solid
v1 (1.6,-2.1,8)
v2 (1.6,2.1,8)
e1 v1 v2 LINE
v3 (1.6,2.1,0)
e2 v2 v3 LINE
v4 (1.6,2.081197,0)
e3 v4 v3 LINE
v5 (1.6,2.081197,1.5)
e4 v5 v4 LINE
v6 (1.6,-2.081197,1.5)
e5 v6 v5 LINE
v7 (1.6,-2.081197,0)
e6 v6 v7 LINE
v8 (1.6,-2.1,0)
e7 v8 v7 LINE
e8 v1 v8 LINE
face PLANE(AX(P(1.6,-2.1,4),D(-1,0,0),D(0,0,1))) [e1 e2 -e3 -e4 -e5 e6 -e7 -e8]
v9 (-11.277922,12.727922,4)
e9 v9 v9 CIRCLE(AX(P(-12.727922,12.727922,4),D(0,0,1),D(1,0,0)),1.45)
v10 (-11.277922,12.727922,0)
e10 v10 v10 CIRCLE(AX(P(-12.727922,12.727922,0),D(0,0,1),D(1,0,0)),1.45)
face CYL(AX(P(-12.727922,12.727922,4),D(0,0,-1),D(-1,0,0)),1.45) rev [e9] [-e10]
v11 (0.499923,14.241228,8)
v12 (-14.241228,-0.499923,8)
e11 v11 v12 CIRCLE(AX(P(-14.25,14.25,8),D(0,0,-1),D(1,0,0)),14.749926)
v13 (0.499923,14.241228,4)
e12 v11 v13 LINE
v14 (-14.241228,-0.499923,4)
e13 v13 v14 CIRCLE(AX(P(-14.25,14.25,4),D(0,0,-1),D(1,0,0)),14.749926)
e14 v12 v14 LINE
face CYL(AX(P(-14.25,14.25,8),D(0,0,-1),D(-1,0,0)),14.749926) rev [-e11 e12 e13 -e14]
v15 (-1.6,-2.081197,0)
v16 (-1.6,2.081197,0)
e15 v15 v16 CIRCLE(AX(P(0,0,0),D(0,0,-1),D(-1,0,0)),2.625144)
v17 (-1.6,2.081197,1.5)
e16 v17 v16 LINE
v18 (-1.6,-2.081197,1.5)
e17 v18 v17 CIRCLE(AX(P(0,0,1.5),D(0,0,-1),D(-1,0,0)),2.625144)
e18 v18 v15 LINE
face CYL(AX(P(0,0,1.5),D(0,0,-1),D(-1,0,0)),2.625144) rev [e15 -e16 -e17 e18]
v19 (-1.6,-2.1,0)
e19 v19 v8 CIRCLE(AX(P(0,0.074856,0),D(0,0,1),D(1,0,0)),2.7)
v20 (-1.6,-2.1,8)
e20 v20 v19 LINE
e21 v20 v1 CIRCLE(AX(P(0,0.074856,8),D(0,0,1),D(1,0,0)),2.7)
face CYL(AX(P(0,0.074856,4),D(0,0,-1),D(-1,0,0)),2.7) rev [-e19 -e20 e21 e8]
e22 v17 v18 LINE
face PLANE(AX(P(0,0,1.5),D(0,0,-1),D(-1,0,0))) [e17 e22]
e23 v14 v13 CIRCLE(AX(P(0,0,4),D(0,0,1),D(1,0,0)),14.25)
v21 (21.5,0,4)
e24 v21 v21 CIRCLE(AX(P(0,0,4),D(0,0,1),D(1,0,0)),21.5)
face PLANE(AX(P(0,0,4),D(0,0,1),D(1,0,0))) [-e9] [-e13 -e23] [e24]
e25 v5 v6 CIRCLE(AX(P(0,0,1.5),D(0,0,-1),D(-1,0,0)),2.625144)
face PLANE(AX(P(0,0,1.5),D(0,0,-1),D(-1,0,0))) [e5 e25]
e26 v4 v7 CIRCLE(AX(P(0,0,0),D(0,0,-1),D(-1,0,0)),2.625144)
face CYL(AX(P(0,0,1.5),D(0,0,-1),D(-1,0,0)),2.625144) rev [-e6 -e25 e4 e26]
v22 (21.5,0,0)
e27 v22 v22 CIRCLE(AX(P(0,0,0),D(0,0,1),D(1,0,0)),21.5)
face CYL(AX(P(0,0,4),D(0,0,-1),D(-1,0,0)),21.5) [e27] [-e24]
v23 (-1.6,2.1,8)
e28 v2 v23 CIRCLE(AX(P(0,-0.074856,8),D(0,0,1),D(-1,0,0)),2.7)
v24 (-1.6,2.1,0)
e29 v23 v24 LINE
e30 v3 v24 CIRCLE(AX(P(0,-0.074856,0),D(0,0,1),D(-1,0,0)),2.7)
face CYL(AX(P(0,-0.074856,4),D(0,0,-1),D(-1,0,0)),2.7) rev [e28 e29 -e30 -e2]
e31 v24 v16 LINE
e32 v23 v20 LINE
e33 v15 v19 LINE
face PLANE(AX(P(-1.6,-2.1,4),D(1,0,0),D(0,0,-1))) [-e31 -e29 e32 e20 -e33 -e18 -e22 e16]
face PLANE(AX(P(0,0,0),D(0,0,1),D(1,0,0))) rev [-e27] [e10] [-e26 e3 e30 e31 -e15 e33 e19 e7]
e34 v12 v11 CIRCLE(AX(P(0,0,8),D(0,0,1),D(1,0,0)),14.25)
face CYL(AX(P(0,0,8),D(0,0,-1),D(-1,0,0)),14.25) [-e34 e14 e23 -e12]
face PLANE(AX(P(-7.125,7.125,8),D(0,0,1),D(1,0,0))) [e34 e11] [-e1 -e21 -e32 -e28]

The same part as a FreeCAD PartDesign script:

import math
import FreeCAD as App
import Part
import Sketcher

doc = App.newDocument("Part")
body = doc.addObject("PartDesign::Body", "Body")

sketch1 = body.newObject("Sketcher::SketchObject", "Sketch")
sketch1.AttachmentSupport = (doc.getObject("XY_Plane"), [""])
sketch1.MapMode = "FlatFace"
sketch1.addGeometry([
    Part.Circle(App.Vector(0, 0, 0), App.Vector(0, 0, 1), 21.5),
    Part.ArcOfCircle(Part.Circle(App.Vector(0, 0.074856, 0), App.Vector(0, 0, 1), 2.7), math.radians(-126.341203), math.radians(-53.658797)),
    Part.LineSegment(App.Vector(-1.6, -2.1, 0), App.Vector(-1.6, 2.1, 0)),
    Part.ArcOfCircle(Part.Circle(App.Vector(0, -0.074856, 0), App.Vector(0, 0, 1), 2.7), math.radians(53.658797), math.radians(126.341203)),
    Part.LineSegment(App.Vector(1.6, 2.1, 0), App.Vector(1.6, -2.1, 0)),
    Part.Circle(App.Vector(-12.727922, 12.727922, 0), App.Vector(0, 0, 1), 1.45),
], False)
sketch1.addConstraint([
    Sketcher.Constraint("Coincident", 1, 1, 2, 1),
    Sketcher.Constraint("Coincident", 2, 2, 3, 2),
    Sketcher.Constraint("Coincident", 3, 1, 4, 1),
    Sketcher.Constraint("Coincident", 4, 2, 1, 2),
    Sketcher.Constraint("Vertical", 2),
    Sketcher.Constraint("Vertical", 4),
    Sketcher.Constraint("Coincident", 0, 3, -1, 1),
    Sketcher.Constraint("Equal", 1, 3),
    Sketcher.Constraint("Symmetric", 1, 3, 3, 3, -1, 1),
    Sketcher.Constraint("Symmetric", 2, 2, 3, 1, -2),
    Sketcher.Constraint("Diameter", 0, 43.0),
    Sketcher.Constraint("Diameter", 5, 2.9),
    Sketcher.Constraint("Radius", 1, 2.7),
    Sketcher.Constraint("DistanceY", 2, 1, 2, 2, 4.2),
    Sketcher.Constraint("DistanceX", 1, 1, -1, 1, 1.6),
    Sketcher.Constraint("DistanceY", 3, 3, 5, 3, 12.802778),
    Sketcher.Constraint("DistanceX", 5, 3, -1, 1, 12.727922),
])
pad1 = body.newObject("PartDesign::Pad", "Pad")
pad1.Profile = sketch1
pad1.Length = 4

sketch2 = body.newObject("Sketcher::SketchObject", "Sketch001")
sketch2.AttachmentSupport = (doc.getObject("XY_Plane"), [""])
sketch2.MapMode = "FlatFace"
sketch2.AttachmentOffset = App.Placement(App.Vector(0, 0, 4), App.Rotation())
sketch2.addGeometry([
    Part.ArcOfCircle(Part.Circle(App.Vector(0, 0, 0), App.Vector(0, 0, 1), 14.25), math.radians(-177.989519), math.radians(87.989519)),
    Part.ArcOfCircle(Part.Circle(App.Vector(-14.25, 14.25, 0), App.Vector(0, 0, 1), 14.749926), math.radians(-89.965926), math.radians(-0.034074)),
    Part.LineSegment(App.Vector(1.6, 2.1, 0), App.Vector(1.6, -2.1, 0)),
    Part.ArcOfCircle(Part.Circle(App.Vector(0, 0.074856, 0), App.Vector(0, 0, 1), 2.7), math.radians(-126.341203), math.radians(-53.658797)),
    Part.LineSegment(App.Vector(-1.6, -2.1, 0), App.Vector(-1.6, 2.1, 0)),
    Part.ArcOfCircle(Part.Circle(App.Vector(0, -0.074856, 0), App.Vector(0, 0, 1), 2.7), math.radians(53.658797), math.radians(126.341203)),
], False)
sketch2.addConstraint([
    Sketcher.Constraint("Coincident", 0, 1, 1, 1),
    Sketcher.Constraint("Coincident", 1, 2, 0, 2),
    Sketcher.Constraint("Coincident", 2, 2, 3, 2),
    Sketcher.Constraint("Coincident", 3, 1, 4, 1),
    Sketcher.Constraint("Coincident", 4, 2, 5, 2),
    Sketcher.Constraint("Coincident", 5, 1, 2, 1),
    Sketcher.Constraint("Vertical", 2),
    Sketcher.Constraint("Vertical", 4),
    Sketcher.Constraint("Coincident", 0, 3, -1, 1),
    Sketcher.Constraint("Equal", 3, 5),
    Sketcher.Constraint("Symmetric", 3, 3, 5, 3, -1, 1),
    Sketcher.Constraint("Symmetric", 2, 2, 3, 1, -2),
    Sketcher.Constraint("Radius", 3, 2.7),
    Sketcher.Constraint("Radius", 0, 14.25),
    Sketcher.Constraint("DistanceY", 2, 2, 2, 1, 4.2),
    Sketcher.Constraint("DistanceX", -1, 1, 2, 2, 1.6),
    Sketcher.Constraint("DistanceX", 1, 3, -1, 1, 14.25),
    Sketcher.Constraint("DistanceY", -1, 1, 1, 3, 14.25),
    Sketcher.Constraint("Radius", 1, 14.749926),
])
pad2 = body.newObject("PartDesign::Pad", "Pad001")
pad2.Profile = sketch2
pad2.Length = 4

sketch3 = body.newObject("Sketcher::SketchObject", "Sketch002")
sketch3.AttachmentSupport = (doc.getObject("XY_Plane"), [""])
sketch3.MapMode = "FlatFace"
sketch3.addGeometry([
    Part.LineSegment(App.Vector(1.6, -2.081197, 0), App.Vector(1.6, 2.081197, 0)),
    Part.ArcOfCircle(Part.Circle(App.Vector(0, 0, 0), App.Vector(0, 0, 1), 2.625144), math.radians(-52.447332), math.radians(52.447332)),
    Part.ArcOfCircle(Part.Circle(App.Vector(0, 0, 0), App.Vector(0, 0, 1), 2.625144), math.radians(127.552668), math.radians(180)),
    Part.LineSegment(App.Vector(-1.6, 2.081197, 0), App.Vector(-1.6, -2.081197, 0)),
    Part.ArcOfCircle(Part.Circle(App.Vector(0, 0, 0), App.Vector(0, 0, 1), 2.625144), math.radians(180), math.radians(232.447332)),
], False)
sketch3.addConstraint([
    Sketcher.Constraint("Coincident", 0, 1, 1, 1),
    Sketcher.Constraint("Coincident", 1, 2, 0, 2),
    Sketcher.Constraint("Coincident", 2, 1, 3, 1),
    Sketcher.Constraint("Coincident", 3, 2, 4, 2),
    Sketcher.Constraint("Tangent", 4, 1, 2, 2),
    Sketcher.Constraint("Vertical", 0),
    Sketcher.Constraint("Vertical", 3),
    Sketcher.Constraint("Coincident", 1, 3, -1, 1),
    Sketcher.Constraint("Coincident", 2, 3, -1, 1),
    Sketcher.Constraint("Equal", 1, 2),
    Sketcher.Constraint("Equal", 2, 4),
    Sketcher.Constraint("PointOnObject", 4, 1, -1),
    Sketcher.Constraint("Horizontal", 1, 2, 2, 1),
    Sketcher.Constraint("DistanceX", -1, 1, 0, 1, 1.6),
    Sketcher.Constraint("Radius", 1, 2.625144),
])
pocket1 = body.newObject("PartDesign::Pocket", "Pocket")
pocket1.Profile = sketch3
pocket1.Length = 1.5
pocket1.Reversed = True

doc.recompute()
